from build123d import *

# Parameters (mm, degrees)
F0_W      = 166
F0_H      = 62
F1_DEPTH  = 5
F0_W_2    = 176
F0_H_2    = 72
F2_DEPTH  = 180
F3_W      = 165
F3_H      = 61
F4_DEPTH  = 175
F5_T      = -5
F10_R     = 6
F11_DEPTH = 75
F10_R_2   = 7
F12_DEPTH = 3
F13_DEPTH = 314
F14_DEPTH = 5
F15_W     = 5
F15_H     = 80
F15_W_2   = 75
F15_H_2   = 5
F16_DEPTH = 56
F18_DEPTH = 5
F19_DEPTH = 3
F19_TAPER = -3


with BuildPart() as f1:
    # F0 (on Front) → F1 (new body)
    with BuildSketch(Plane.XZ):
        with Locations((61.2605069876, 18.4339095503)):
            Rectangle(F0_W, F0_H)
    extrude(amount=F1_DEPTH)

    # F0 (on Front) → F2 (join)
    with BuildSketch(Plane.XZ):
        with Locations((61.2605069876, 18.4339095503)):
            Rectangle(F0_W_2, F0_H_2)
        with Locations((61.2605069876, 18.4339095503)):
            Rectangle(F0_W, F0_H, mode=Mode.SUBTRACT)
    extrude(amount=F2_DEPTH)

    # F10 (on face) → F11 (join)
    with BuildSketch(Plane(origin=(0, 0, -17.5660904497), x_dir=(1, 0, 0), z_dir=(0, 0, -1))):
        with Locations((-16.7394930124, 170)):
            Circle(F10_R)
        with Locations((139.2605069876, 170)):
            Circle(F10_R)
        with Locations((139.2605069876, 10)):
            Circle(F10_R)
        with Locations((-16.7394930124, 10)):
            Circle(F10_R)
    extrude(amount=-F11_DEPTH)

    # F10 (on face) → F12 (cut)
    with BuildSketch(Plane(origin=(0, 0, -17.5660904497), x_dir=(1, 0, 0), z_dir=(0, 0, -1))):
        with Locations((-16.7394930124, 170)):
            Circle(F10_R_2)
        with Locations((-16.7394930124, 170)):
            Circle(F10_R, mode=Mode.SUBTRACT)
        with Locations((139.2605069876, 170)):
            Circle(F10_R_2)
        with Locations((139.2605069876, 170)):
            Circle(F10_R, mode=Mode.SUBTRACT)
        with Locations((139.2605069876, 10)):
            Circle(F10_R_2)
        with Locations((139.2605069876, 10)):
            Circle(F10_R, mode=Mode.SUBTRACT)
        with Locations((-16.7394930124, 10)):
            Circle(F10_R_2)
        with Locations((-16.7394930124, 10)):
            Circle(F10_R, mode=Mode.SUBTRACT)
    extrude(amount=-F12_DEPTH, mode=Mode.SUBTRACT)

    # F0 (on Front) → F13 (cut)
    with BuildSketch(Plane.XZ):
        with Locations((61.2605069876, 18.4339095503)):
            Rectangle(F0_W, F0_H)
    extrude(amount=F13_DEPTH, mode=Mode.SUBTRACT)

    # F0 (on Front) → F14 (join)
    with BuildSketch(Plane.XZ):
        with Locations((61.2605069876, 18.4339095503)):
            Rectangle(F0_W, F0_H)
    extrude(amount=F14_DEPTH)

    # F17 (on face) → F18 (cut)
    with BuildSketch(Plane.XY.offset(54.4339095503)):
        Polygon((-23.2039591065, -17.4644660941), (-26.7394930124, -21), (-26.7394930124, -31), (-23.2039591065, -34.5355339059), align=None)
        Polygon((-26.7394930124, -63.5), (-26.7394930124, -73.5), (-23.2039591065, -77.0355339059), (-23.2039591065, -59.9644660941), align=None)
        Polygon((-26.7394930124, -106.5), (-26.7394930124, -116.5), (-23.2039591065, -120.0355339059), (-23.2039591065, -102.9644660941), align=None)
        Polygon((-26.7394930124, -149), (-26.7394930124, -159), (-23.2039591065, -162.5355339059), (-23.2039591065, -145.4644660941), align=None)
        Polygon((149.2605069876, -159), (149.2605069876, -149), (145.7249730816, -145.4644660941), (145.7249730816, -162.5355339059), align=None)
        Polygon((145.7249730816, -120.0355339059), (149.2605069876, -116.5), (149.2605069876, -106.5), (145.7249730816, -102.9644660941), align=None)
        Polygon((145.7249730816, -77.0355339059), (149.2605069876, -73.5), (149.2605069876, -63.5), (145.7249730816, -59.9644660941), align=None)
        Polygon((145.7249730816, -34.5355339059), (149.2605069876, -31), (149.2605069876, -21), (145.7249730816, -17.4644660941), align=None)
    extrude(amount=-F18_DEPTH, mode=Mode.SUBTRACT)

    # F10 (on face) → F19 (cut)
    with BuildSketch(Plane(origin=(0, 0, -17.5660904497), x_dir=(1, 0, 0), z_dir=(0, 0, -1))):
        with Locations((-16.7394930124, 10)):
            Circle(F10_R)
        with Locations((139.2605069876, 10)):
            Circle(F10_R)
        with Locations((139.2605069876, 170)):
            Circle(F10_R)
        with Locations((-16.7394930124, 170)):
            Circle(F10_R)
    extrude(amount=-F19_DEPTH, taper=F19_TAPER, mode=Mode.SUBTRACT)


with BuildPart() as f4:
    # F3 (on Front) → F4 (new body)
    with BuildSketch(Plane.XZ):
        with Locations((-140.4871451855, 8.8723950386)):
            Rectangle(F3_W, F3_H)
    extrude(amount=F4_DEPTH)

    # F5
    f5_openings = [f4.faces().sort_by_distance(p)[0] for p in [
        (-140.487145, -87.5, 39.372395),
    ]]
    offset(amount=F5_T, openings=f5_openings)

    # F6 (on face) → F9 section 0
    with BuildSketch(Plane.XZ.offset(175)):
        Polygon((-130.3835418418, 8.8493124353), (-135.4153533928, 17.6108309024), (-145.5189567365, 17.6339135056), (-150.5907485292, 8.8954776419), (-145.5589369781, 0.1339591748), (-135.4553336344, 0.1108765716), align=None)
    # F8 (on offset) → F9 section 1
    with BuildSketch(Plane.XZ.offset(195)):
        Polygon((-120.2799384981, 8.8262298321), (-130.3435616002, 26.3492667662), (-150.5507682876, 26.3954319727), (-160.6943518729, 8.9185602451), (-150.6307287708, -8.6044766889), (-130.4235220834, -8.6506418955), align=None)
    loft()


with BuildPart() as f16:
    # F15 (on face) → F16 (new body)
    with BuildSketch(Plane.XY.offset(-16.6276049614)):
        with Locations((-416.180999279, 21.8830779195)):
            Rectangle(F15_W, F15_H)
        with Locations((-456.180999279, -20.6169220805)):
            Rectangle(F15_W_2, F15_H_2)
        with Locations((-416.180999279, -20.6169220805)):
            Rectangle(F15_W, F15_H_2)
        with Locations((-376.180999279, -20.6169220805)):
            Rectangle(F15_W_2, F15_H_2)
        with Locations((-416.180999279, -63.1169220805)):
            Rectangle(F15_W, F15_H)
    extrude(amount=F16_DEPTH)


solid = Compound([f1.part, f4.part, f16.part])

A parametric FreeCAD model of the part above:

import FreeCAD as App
import Part
import Sketcher

V = App.Vector


def faces_at(feature, points):
    """Names of the faces that lie closest to the given points."""
    faces = feature.Shape.Faces
    near = lambda p: min(range(len(faces)), key=lambda i: faces[i].distToShape(Part.Vertex(*p))[0])
    return sorted({f"Face{near(p) + 1}" for p in points})

doc = App.newDocument("Part")
params = doc.addObject("Spreadsheet::Sheet", "Params")
for row, (alias, value) in enumerate([
    ("sketch1_width", "166 mm"),
    ("sketch1_height", "62 mm"),
    ("pad1_length", "5 mm"),
    ("sketch2_width", "176 mm"),
    ("sketch2_width2", "166 mm"),
    ("sketch2_height", "72 mm"),
    ("sketch2_height2", "62 mm"),
    ("pad2_length", "180 mm"),
    ("sketch3_diameter", "12 mm"),
    ("pad3_length", "75 mm"),
    ("sketch4_diameter", "14 mm"),
    ("sketch4_diameter2", "12 mm"),
    ("pocket1_length", "3 mm"),
    ("sketch5_width", "166 mm"),
    ("sketch5_height", "62 mm"),
    ("pocket2_length", "314 mm"),
    ("sketch6_width", "166 mm"),
    ("sketch6_height", "62 mm"),
    ("pad4_length", "5 mm"),
    ("sketch7_height", "10 mm"),
    ("sketch7_length", "5 mm"),
    ("pocket3_length", "5 mm"),
    ("sketch8_diameter", "12 mm"),
    ("pocket4_length", "3 mm"),
    ("pocket4_taper", "3 deg"),
    ("sketch9_width", "165 mm"),
    ("sketch9_height", "61 mm"),
    ("pad5_length", "175 mm"),
    ("thickness_wall", "5 mm"),
    ("sketch12_width", "75 mm"),
    ("sketch12_width2", "5 mm"),
    ("sketch12_height", "80 mm"),
    ("pad6_length", "56 mm"),
], start=1):
    params.set(f"A{row}", alias)
    params.set(f"B{row}", "=" + value)
    params.setAlias(f"B{row}", alias)

body = doc.addObject("PartDesign::Body", "Body")

sketch1 = body.newObject("Sketcher::SketchObject", "Sketch")
sketch1.AttachmentSupport = (doc.getObject("XZ_Plane"), [""])
sketch1.MapMode = "FlatFace"
sketch1.addGeometry([
    Part.LineSegment(V(-22, 49, 0), V(-22, -13, 0)),
    Part.LineSegment(V(-22, -13, 0), V(144, -13, 0)),
    Part.LineSegment(V(144, -13, 0), V(144, 49, 0)),
    Part.LineSegment(V(144, 49, 0), V(-22, 49, 0)),
], False)
sketch1.addConstraint([
    Sketcher.Constraint("Coincident", 0, 2, 1, 1),
    Sketcher.Constraint("Coincident", 1, 2, 2, 1),
    Sketcher.Constraint("Coincident", 2, 2, 3, 1),
    Sketcher.Constraint("Coincident", 3, 2, 0, 1),
    Sketcher.Constraint("Vertical", 0),
    Sketcher.Constraint("Horizontal", 1),
    Sketcher.Constraint("Vertical", 2),
    Sketcher.Constraint("Horizontal", 3),
    Sketcher.Constraint("DistanceX", 1, 1, 1, 2, 166.0),
    Sketcher.Constraint("DistanceY", 0, 2, 0, 1, 62.0),
    Sketcher.Constraint("DistanceY", 0, 2, -1, 1, 12.56609),
    Sketcher.Constraint("DistanceX", 0, 2, -1, 1, 21.739493),
])
sketch1.setExpression("Constraints[8]", "Params.sketch1_width")
sketch1.setExpression("Constraints[9]", "Params.sketch1_height")
pad1 = body.newObject("PartDesign::Pad", "Pad")
pad1.Profile = sketch1
pad1.setExpression("Length", "Params.pad1_length")

sketch2 = body.newObject("Sketcher::SketchObject", "Sketch001")
sketch2.AttachmentSupport = (doc.getObject("XZ_Plane"), [""])
sketch2.MapMode = "FlatFace"
sketch2.addGeometry([
    Part.LineSegment(V(-27, 54, 0), V(-27, -18, 0)),
    Part.LineSegment(V(-27, -18, 0), V(149, -18, 0)),
    Part.LineSegment(V(149, -18, 0), V(149, 54, 0)),
    Part.LineSegment(V(149, 54, 0), V(-27, 54, 0)),
    Part.LineSegment(V(144, -13, 0), V(-22, -13, 0)),
    Part.LineSegment(V(-22, -13, 0), V(-22, 49, 0)),
    Part.LineSegment(V(-22, 49, 0), V(144, 49, 0)),
    Part.LineSegment(V(144, 49, 0), V(144, -13, 0)),
], False)
sketch2.addConstraint([
    Sketcher.Constraint("Coincident", 0, 2, 1, 1),
    Sketcher.Constraint("Coincident", 1, 2, 2, 1),
    Sketcher.Constraint("Coincident", 2, 2, 3, 1),
    Sketcher.Constraint("Coincident", 3, 2, 0, 1),
    Sketcher.Constraint("Coincident", 4, 2, 5, 1),
    Sketcher.Constraint("Coincident", 5, 2, 6, 1),
    Sketcher.Constraint("Coincident", 6, 2, 7, 1),
    Sketcher.Constraint("Coincident", 7, 2, 4, 1),
    Sketcher.Constraint("Vertical", 0),
    Sketcher.Constraint("Horizontal", 1),
    Sketcher.Constraint("Vertical", 2),
    Sketcher.Constraint("Horizontal", 3),
    Sketcher.Constraint("Horizontal", 4),
    Sketcher.Constraint("Vertical", 5),
    Sketcher.Constraint("Horizontal", 6),
    Sketcher.Constraint("Vertical", 7),
    Sketcher.Constraint("DistanceX", 1, 1, 1, 2, 176.0),
    Sketcher.Constraint("DistanceX", 4, 2, 4, 1, 166.0),
    Sketcher.Constraint("DistanceY", 0, 2, 0, 1, 72.0),
    Sketcher.Constraint("DistanceY", 5, 1, 5, 2, 62.0),
    Sketcher.Constraint("DistanceX", 0, 2, 4, 2, 5.0),
    Sketcher.Constraint("DistanceY", 0, 2, 4, 2, 5.0),
    Sketcher.Constraint("DistanceY", 0, 2, -1, 1, 17.56609),
    Sketcher.Constraint("DistanceX", 0, 2, -1, 1, 26.739493),
])
sketch2.setExpression("Constraints[16]", "Params.sketch2_width")
sketch2.setExpression("Constraints[17]", "Params.sketch2_width2")
sketch2.setExpression("Constraints[18]", "Params.sketch2_height")
sketch2.setExpression("Constraints[19]", "Params.sketch2_height2")
pad2 = body.newObject("PartDesign::Pad", "Pad001")
pad2.Profile = sketch2
pad2.setExpression("Length", "Params.pad2_length")

sketch3 = body.newObject("Sketcher::SketchObject", "Sketch002")
sketch3.AttachmentSupport = (doc.getObject("XY_Plane"), [""])
sketch3.MapMode = "FlatFace"
sketch3.AttachmentOffset = App.Placement(V(0, 0, -17.56609), App.Rotation())
sketch3.addGeometry([
    Part.Circle(V(-17, -170, 0), V(0, 0, 1), 6),
    Part.Circle(V(139, -170, 0), V(0, 0, 1), 6),
    Part.Circle(V(139, -10, 0), V(0, 0, 1), 6),
    Part.Circle(V(-17, -10, 0), V(0, 0, 1), 6),
], False)
sketch3.addConstraint([
    Sketcher.Constraint("Equal", 0, 1),
    Sketcher.Constraint("Equal", 1, 2),
    Sketcher.Constraint("Equal", 2, 3),
    Sketcher.Constraint("Horizontal", 0, 3, 1, 3),
    Sketcher.Constraint("Horizontal", 2, 3, 3, 3),
    Sketcher.Constraint("Vertical", 1, 3, 2, 3),
    Sketcher.Constraint("Vertical", 0, 3, 3, 3),
    Sketcher.Constraint("Diameter", 0, 12.0),
    Sketcher.Constraint("DistanceY", 0, 3, -1, 1, 170.0),
    Sketcher.Constraint("DistanceY", 2, 3, -1, 1, 10.0),
    Sketcher.Constraint("DistanceX", 0, 3, 1, 3, 156.0),
    Sketcher.Constraint("DistanceX", 0, 3, -1, 1, 16.739493),
])
sketch3.setExpression("Constraints[7]", "Params.sketch3_diameter")
pad3 = body.newObject("PartDesign::Pad", "Pad002")
pad3.Profile = sketch3
pad3.setExpression("Length", "Params.pad3_length")

sketch4 = body.newObject("Sketcher::SketchObject", "Sketch003")
sketch4.AttachmentSupport = (doc.getObject("XY_Plane"), [""])
sketch4.MapMode = "FlatFace"
sketch4.AttachmentOffset = App.Placement(V(0, 0, -17.56609), App.Rotation())
sketch4.addGeometry([
    Part.Circle(V(-17, -170, 0), V(0, 0, 1), 7),
    Part.Circle(V(-17, -170, 0), V(0, 0, 1), 6),
    Part.Circle(V(139, -170, 0), V(0, 0, 1), 7),
    Part.Circle(V(139, -170, 0), V(0, 0, 1), 6),
    Part.Circle(V(139, -10, 0), V(0, 0, 1), 7),
    Part.Circle(V(139, -10, 0), V(0, 0, 1), 6),
    Part.Circle(V(-17, -10, 0), V(0, 0, 1), 7),
    Part.Circle(V(-17, -10, 0), V(0, 0, 1), 6),
], False)
sketch4.addConstraint([
    Sketcher.Constraint("Coincident", 1, 3, 0, 3),
    Sketcher.Constraint("Coincident", 3, 3, 2, 3),
    Sketcher.Constraint("Coincident", 5, 3, 4, 3),
    Sketcher.Constraint("Coincident", 7, 3, 6, 3),
    Sketcher.Constraint("Equal", 0, 2),
    Sketcher.Constraint("Equal", 1, 3),
    Sketcher.Constraint("Equal", 2, 4),
    Sketcher.Constraint("Equal", 3, 5),
    Sketcher.Constraint("Equal", 4, 6),
    Sketcher.Constraint("Equal", 5, 7),
    Sketcher.Constraint("Horizontal", 1, 3, 2, 3),
    Sketcher.Constraint("Horizontal", 5, 3, 6, 3),
    Sketcher.Constraint("Vertical", 3, 3, 4, 3),
    Sketcher.Constraint("Vertical", 1, 3, 6, 3),
    Sketcher.Constraint("Diameter", 0, 14.0),
    Sketcher.Constraint("Diameter", 1, 12.0),
    Sketcher.Constraint("DistanceY", 0, 3, -1, 1, 170.0),
    Sketcher.Constraint("DistanceY", 4, 3, -1, 1, 10.0),
    Sketcher.Constraint("DistanceX", 0, 3, 2, 3, 156.0),
    Sketcher.Constraint("DistanceX", 0, 3, -1, 1, 16.739493),
])
sketch4.setExpression("Constraints[14]", "Params.sketch4_diameter")
sketch4.setExpression("Constraints[15]", "Params.sketch4_diameter2")
pocket1 = body.newObject("PartDesign::Pocket", "Pocket")
pocket1.Profile = sketch4
pocket1.setExpression("Length", "Params.pocket1_length")
pocket1.Reversed = True

sketch5 = body.newObject("Sketcher::SketchObject", "Sketch004")
sketch5.AttachmentSupport = (doc.getObject("XZ_Plane"), [""])
sketch5.MapMode = "FlatFace"
sketch5.addGeometry([
    Part.LineSegment(V(-22, 49, 0), V(-22, -13, 0)),
    Part.LineSegment(V(-22, -13, 0), V(144, -13, 0)),
    Part.LineSegment(V(144, -13, 0), V(144, 49, 0)),
    Part.LineSegment(V(144, 49, 0), V(-22, 49, 0)),
], False)
sketch5.addConstraint([
    Sketcher.Constraint("Coincident", 0, 2, 1, 1),
    Sketcher.Constraint("Coincident", 1, 2, 2, 1),
    Sketcher.Constraint("Coincident", 2, 2, 3, 1),
    Sketcher.Constraint("Coincident", 3, 2, 0, 1),
    Sketcher.Constraint("Vertical", 0),
    Sketcher.Constraint("Horizontal", 1),
    Sketcher.Constraint("Vertical", 2),
    Sketcher.Constraint("Horizontal", 3),
    Sketcher.Constraint("DistanceX", 1, 1, 1, 2, 166.0),
    Sketcher.Constraint("DistanceY", 0, 2, 0, 1, 62.0),
    Sketcher.Constraint("DistanceY", 0, 2, -1, 1, 12.56609),
    Sketcher.Constraint("DistanceX", 0, 2, -1, 1, 21.739493),
])
sketch5.setExpression("Constraints[8]", "Params.sketch5_width")
sketch5.setExpression("Constraints[9]", "Params.sketch5_height")
pocket2 = body.newObject("PartDesign::Pocket", "Pocket001")
pocket2.Profile = sketch5
pocket2.setExpression("Length", "Params.pocket2_length")
pocket2.Reversed = True

sketch6 = body.newObject("Sketcher::SketchObject", "Sketch005")
sketch6.AttachmentSupport = (doc.getObject("XZ_Plane"), [""])
sketch6.MapMode = "FlatFace"
sketch6.addGeometry([
    Part.LineSegment(V(-22, 49, 0), V(-22, -13, 0)),
    Part.LineSegment(V(-22, -13, 0), V(144, -13, 0)),
    Part.LineSegment(V(144, -13, 0), V(144, 49, 0)),
    Part.LineSegment(V(144, 49, 0), V(-22, 49, 0)),
], False)
sketch6.addConstraint([
    Sketcher.Constraint("Coincident", 0, 2, 1, 1),
    Sketcher.Constraint("Coincident", 1, 2, 2, 1),
    Sketcher.Constraint("Coincident", 2, 2, 3, 1),
    Sketcher.Constraint("Coincident", 3, 2, 0, 1),
    Sketcher.Constraint("Vertical", 0),
    Sketcher.Constraint("Horizontal", 1),
    Sketcher.Constraint("Vertical", 2),
    Sketcher.Constraint("Horizontal", 3),
    Sketcher.Constraint("DistanceX", 1, 1, 1, 2, 166.0),
    Sketcher.Constraint("DistanceY", 0, 2, 0, 1, 62.0),
    Sketcher.Constraint("DistanceY", 0, 2, -1, 1, 12.56609),
    Sketcher.Constraint("DistanceX", 0, 2, -1, 1, 21.739493),
])
sketch6.setExpression("Constraints[8]", "Params.sketch6_width")
sketch6.setExpression("Constraints[9]", "Params.sketch6_height")
pad4 = body.newObject("PartDesign::Pad", "Pad003")
pad4.Profile = sketch6
pad4.setExpression("Length", "Params.pad4_length")

sketch7 = body.newObject("Sketcher::SketchObject", "Sketch006")
sketch7.AttachmentSupport = (doc.getObject("XY_Plane"), [""])
sketch7.MapMode = "FlatFace"
sketch7.AttachmentOffset = App.Placement(V(0, 0, 54.43391), App.Rotation())
sketch7.addGeometry([
    Part.LineSegment(V(-23.2, -17.5, 0), V(-26.7, -21, 0)),
    Part.LineSegment(V(-26.7, -21, 0), V(-26.7, -31, 0)),
    Part.LineSegment(V(-26.7, -31, 0), V(-23.2, -34.5, 0)),
    Part.LineSegment(V(-23.2, -34.5, 0), V(-23.2, -17.5, 0)),
    Part.LineSegment(V(-26.7, -63.5, 0), V(-26.7, -73.5, 0)),
    Part.LineSegment(V(-26.7, -73.5, 0), V(-23.2, -77, 0)),
    Part.LineSegment(V(-23.2, -77, 0), V(-23.2, -60, 0)),
    Part.LineSegment(V(-23.2, -60, 0), V(-26.7, -63.5, 0)),
    Part.LineSegment(V(-26.7, -106.5, 0), V(-26.7, -116.5, 0)),
    Part.LineSegment(V(-26.7, -116.5, 0), V(-23.2, -120, 0)),
    Part.LineSegment(V(-23.2, -120, 0), V(-23.2, -103, 0)),
    Part.LineSegment(V(-23.2, -103, 0), V(-26.7, -106.5, 0)),
    Part.LineSegment(V(-26.7, -149, 0), V(-26.7, -159, 0)),
    Part.LineSegment(V(-26.7, -159, 0), V(-23.2, -162.5, 0)),
    Part.LineSegment(V(-23.2, -162.5, 0), V(-23.2, -145.5, 0)),
    Part.LineSegment(V(-23.2, -145.5, 0), V(-26.7, -149, 0)),
    Part.LineSegment(V(149.3, -159, 0), V(149.3, -149, 0)),
    Part.LineSegment(V(149.3, -149, 0), V(145.7, -145.5, 0)),
    Part.LineSegment(V(145.7, -145.5, 0), V(145.7, -162.5, 0)),
    Part.LineSegment(V(145.7, -162.5, 0), V(149.3, -159, 0)),
    Part.LineSegment(V(145.7, -120, 0), V(149.3, -116.5, 0)),
    Part.LineSegment(V(149.3, -116.5, 0), V(149.3, -106.5, 0)),
    Part.LineSegment(V(149.3, -106.5, 0), V(145.7, -103, 0)),
    Part.LineSegment(V(145.7, -103, 0), V(145.7, -120, 0)),
    Part.LineSegment(V(145.7, -77, 0), V(149.3, -73.5, 0)),
    Part.LineSegment(V(149.3, -73.5, 0), V(149.3, -63.5, 0)),
    Part.LineSegment(V(149.3, -63.5, 0), V(145.7, -60, 0)),
    Part.LineSegment(V(145.7, -60, 0), V(145.7, -77, 0)),
    Part.LineSegment(V(145.7, -34.5, 0), V(149.3, -31, 0)),
    Part.LineSegment(V(149.3, -31, 0), V(149.3, -21, 0)),
    Part.LineSegment(V(149.3, -21, 0), V(145.7, -17.5, 0)),
    Part.LineSegment(V(145.7, -17.5, 0), V(145.7, -34.5, 0)),
], False)
sketch7.addConstraint([
    Sketcher.Constraint("Coincident", 0, 2, 1, 1),
    Sketcher.Constraint("Coincident", 1, 2, 2, 1),
    Sketcher.Constraint("Coincident", 2, 2, 3, 1),
    Sketcher.Constraint("Coincident", 3, 2, 0, 1),
    Sketcher.Constraint("Coincident", 4, 2, 5, 1),
    Sketcher.Constraint("Coincident", 5, 2, 6, 1),
    Sketcher.Constraint("Coincident", 6, 2, 7, 1),
    Sketcher.Constraint("Coincident", 7, 2, 4, 1),
    Sketcher.Constraint("Coincident", 8, 2, 9, 1),
    Sketcher.Constraint("Coincident", 9, 2, 10, 1),
    Sketcher.Constraint("Coincident", 10, 2, 11, 1),
    Sketcher.Constraint("Coincident", 11, 2, 8, 1),
    Sketcher.Constraint("Coincident", 12, 2, 13, 1),
    Sketcher.Constraint("Coincident", 13, 2, 14, 1),
    Sketcher.Constraint("Coincident", 14, 2, 15, 1),
    Sketcher.Constraint("Coincident", 15, 2, 12, 1),
    Sketcher.Constraint("Coincident", 16, 2, 17, 1),
    Sketcher.Constraint("Coincident", 17, 2, 18, 1),
    Sketcher.Constraint("Coincident", 18, 2, 19, 1),
    Sketcher.Constraint("Coincident", 19, 2, 16, 1),
    Sketcher.Constraint("Coincident", 20, 2, 21, 1),
    Sketcher.Constraint("Coincident", 21, 2, 22, 1),
    Sketcher.Constraint("Coincident", 22, 2, 23, 1),
    Sketcher.Constraint("Coincident", 23, 2, 20, 1),
    Sketcher.Constraint("Coincident", 24, 2, 25, 1),
    Sketcher.Constraint("Coincident", 25, 2, 26, 1),
    Sketcher.Constraint("Coincident", 26, 2, 27, 1),
    Sketcher.Constraint("Coincident", 27, 2, 24, 1),
    Sketcher.Constraint("Coincident", 28, 2, 29, 1),
    Sketcher.Constraint("Coincident", 29, 2, 30, 1),
    Sketcher.Constraint("Coincident", 30, 2, 31, 1),
    Sketcher.Constraint("Coincident", 31, 2, 28, 1),
    Sketcher.Constraint("Vertical", 1),
    Sketcher.Constraint("Vertical", 3),
    Sketcher.Constraint("Vertical", 4),
    Sketcher.Constraint("Vertical", 6),
    Sketcher.Constraint("Vertical", 8),
    Sketcher.Constraint("Vertical", 10),
    Sketcher.Constraint("Vertical", 12),
    Sketcher.Constraint("Vertical", 14),
    Sketcher.Constraint("Vertical", 16),
    Sketcher.Constraint("Vertical", 18),
    Sketcher.Constraint("Vertical", 21),
    Sketcher.Constraint("Vertical", 23),
    Sketcher.Constraint("Vertical", 25),
    Sketcher.Constraint("Vertical", 27),
    Sketcher.Constraint("Vertical", 29),
    Sketcher.Constraint("Vertical", 31),
    Sketcher.Constraint("Perpendicular", 0, 2),
    Sketcher.Constraint("Parallel", 2, 5),
    Sketcher.Constraint("Perpendicular", 5, 7),
    Sketcher.Constraint("Perpendicular", 7, 9),
    Sketcher.Constraint("Perpendicular", 9, 11),
    Sketcher.Constraint("Perpendicular", 11, 13),
    Sketcher.Constraint("Perpendicular", 13, 15),
    Sketcher.Constraint("Perpendicular", 15, 17),
    Sketcher.Constraint("Perpendicular", 17, 19),
    Sketcher.Constraint("Parallel", 19, 20),
    Sketcher.Constraint("Perpendicular", 20, 22),
    Sketcher.Constraint("Perpendicular", 22, 24),
    Sketcher.Constraint("Perpendicular", 24, 26),
    Sketcher.Constraint("Perpendicular", 26, 28),
    Sketcher.Constraint("Perpendicular", 28, 30),
    Sketcher.Constraint("Horizontal", 15, 2, 16, 2),
    Sketcher.Constraint("Horizontal", 14, 2, 17, 2),
    Sketcher.Constraint("Horizontal", 13, 2, 18, 2),
    Sketcher.Constraint("Horizontal", 12, 2, 19, 2),
    Sketcher.Constraint("Horizontal", 8, 2, 20, 2),
    Sketcher.Constraint("Horizontal", 11, 2, 21, 2),
    Sketcher.Constraint("Horizontal", 10, 2, 22, 2),
    Sketcher.Constraint("Horizontal", 4, 2, 24, 2),
    Sketcher.Constraint("Horizontal", 7, 2, 25, 2),
    Sketcher.Constraint("Horizontal", 6, 2, 26, 2),
    Sketcher.Constraint("Horizontal", 1, 2, 28, 2),
    Sketcher.Constraint("Horizontal", 0, 2, 29, 2),
    Sketcher.Constraint("Horizontal", 3, 2, 30, 2),
    Sketcher.Constraint("Vertical", 1, 2, 4, 2),
    Sketcher.Constraint("Vertical", 3, 2, 5, 2),
    Sketcher.Constraint("Vertical", 7, 2, 8, 2),
    Sketcher.Constraint("Vertical", 6, 2, 9, 2),
    Sketcher.Constraint("Vertical", 11, 2, 12, 2),
    Sketcher.Constraint("Vertical", 10, 2, 13, 2),
    Sketcher.Constraint("Vertical", 19, 2, 20, 2),
    Sketcher.Constraint("Vertical", 21, 2, 24, 2),
    Sketcher.Constraint("Vertical", 25, 2, 28, 2),
    Sketcher.Constraint("Equal", 1, 4),
    Sketcher.Constraint("Equal", 4, 8),
    Sketcher.Constraint("Equal", 8, 12),
    Sketcher.Constraint("DistanceY", 1, 2, 1, 1, 10.0),
    Sketcher.Constraint("Distance", 0, 5.0),
    Sketcher.Constraint("DistanceY", 0, 2, -1, 1, 21.0),
    Sketcher.Constraint("DistanceY", 12, 2, -1, 1, 159.0),
    Sketcher.Constraint("DistanceY", 8, 2, 4, 2, 43.0),
    Sketcher.Constraint("DistanceX", 15, 2, 16, 2, 176.0),
    Sketcher.Constraint("DistanceY", 4, 2, -1, 1, 73.5),
    Sketcher.Constraint("DistanceX", 2, 2, -1, 1, 23.203959),
])
sketch7.setExpression("Constraints[88]", "Params.sketch7_height")
sketch7.setExpression("Constraints[89]", "Params.sketch7_length")
pocket3 = body.newObject("PartDesign::Pocket", "Pocket002")
pocket3.Profile = sketch7
pocket3.setExpression("Length", "Params.pocket3_length")

sketch8 = body.newObject("Sketcher::SketchObject", "Sketch007")
sketch8.AttachmentSupport = (doc.getObject("XY_Plane"), [""])
sketch8.MapMode = "FlatFace"
sketch8.AttachmentOffset = App.Placement(V(0, 0, -17.56609), App.Rotation())
sketch8.addGeometry([
    Part.Circle(V(-17, -10, 0), V(0, 0, 1), 6),
    Part.Circle(V(139, -10, 0), V(0, 0, 1), 6),
    Part.Circle(V(139, -170, 0), V(0, 0, 1), 6),
    Part.Circle(V(-17, -170, 0), V(0, 0, 1), 6),
], False)
sketch8.addConstraint([
    Sketcher.Constraint("Equal", 0, 1),
    Sketcher.Constraint("Equal", 1, 2),
    Sketcher.Constraint("Equal", 2, 3),
    Sketcher.Constraint("Horizontal", 0, 3, 1, 3),
    Sketcher.Constraint("Horizontal", 2, 3, 3, 3),
    Sketcher.Constraint("Vertical", 1, 3, 2, 3),
    Sketcher.Constraint("Vertical", 0, 3, 3, 3),
    Sketcher.Constraint("Diameter", 0, 12.0),
    Sketcher.Constraint("DistanceY", 0, 3, -1, 1, 10.0),
    Sketcher.Constraint("DistanceY", 2, 3, -1, 1, 170.0),
    Sketcher.Constraint("DistanceX", 0, 3, 1, 3, 156.0),
    Sketcher.Constraint("DistanceX", 0, 3, -1, 1, 16.739493),
])
sketch8.setExpression("Constraints[7]", "Params.sketch8_diameter")
pocket4 = body.newObject("PartDesign::Pocket", "Pocket003")
pocket4.Profile = sketch8
pocket4.setExpression("Length", "Params.pocket4_length")
pocket4.Reversed = True
pocket4.setExpression("TaperAngle", "Params.pocket4_taper")
body2 = doc.addObject("PartDesign::Body", "Body001")

sketch9 = body2.newObject("Sketcher::SketchObject", "Sketch008")
sketch9.AttachmentSupport = (doc.getObject("XZ_Plane001"), [""])
sketch9.MapMode = "FlatFace"
sketch9.addGeometry([
    Part.LineSegment(V(-223, 39, 0), V(-223, -22, 0)),
    Part.LineSegment(V(-223, -22, 0), V(-58, -22, 0)),
    Part.LineSegment(V(-58, -22, 0), V(-58, 39, 0)),
    Part.LineSegment(V(-58, 39, 0), V(-223, 39, 0)),
], False)
sketch9.addConstraint([
    Sketcher.Constraint("Coincident", 0, 2, 1, 1),
    Sketcher.Constraint("Coincident", 1, 2, 2, 1),
    Sketcher.Constraint("Coincident", 2, 2, 3, 1),
    Sketcher.Constraint("Coincident", 3, 2, 0, 1),
    Sketcher.Constraint("Vertical", 0),
    Sketcher.Constraint("Horizontal", 1),
    Sketcher.Constraint("Vertical", 2),
    Sketcher.Constraint("Horizontal", 3),
    Sketcher.Constraint("DistanceX", 1, 1, 1, 2, 165.0),
    Sketcher.Constraint("DistanceY", 0, 2, 0, 1, 61.0),
    Sketcher.Constraint("DistanceX", 0, 2, -1, 1, 222.987145),
    Sketcher.Constraint("DistanceY", 0, 2, -1, 1, 21.627605),
])
sketch9.setExpression("Constraints[8]", "Params.sketch9_width")
sketch9.setExpression("Constraints[9]", "Params.sketch9_height")
pad5 = body2.newObject("PartDesign::Pad", "Pad004")
pad5.Profile = sketch9
pad5.setExpression("Length", "Params.pad5_length")
doc.recompute()

thickness = body2.newObject("PartDesign::Thickness", "Thickness")
thickness.Base = (pad5, faces_at(pad5, [(-140.487, -87.5, 39.372)]))
thickness.setExpression("Value", "Params.thickness_wall")
thickness.Reversed = True
thickness.Join = "Arc"

sketch10 = body2.newObject("Sketcher::SketchObject", "Sketch009")
sketch10.AttachmentSupport = (doc.getObject("XZ_Plane001"), [""])
sketch10.MapMode = "FlatFace"
sketch10.AttachmentOffset = App.Placement(V(0, 0, 175), App.Rotation())
sketch10.addGeometry([
    Part.LineSegment(V(-130, 9, 0), V(-135, 18, 0)),
    Part.LineSegment(V(-135, 18, 0), V(-146, 18, 0)),
    Part.LineSegment(V(-146, 18, 0), V(-151, 9, 0)),
    Part.LineSegment(V(-151, 9, 0), V(-146, 0, 0)),
    Part.LineSegment(V(-146, 0, 0), V(-135, 0, 0)),
    Part.LineSegment(V(-135, 0, 0), V(-130, 9, 0)),
], False)
sketch10.addConstraint([
    Sketcher.Constraint("Coincident", 0, 2, 1, 1),
    Sketcher.Constraint("Coincident", 1, 2, 2, 1),
    Sketcher.Constraint("Coincident", 2, 2, 3, 1),
    Sketcher.Constraint("Coincident", 3, 2, 4, 1),
    Sketcher.Constraint("Coincident", 4, 2, 5, 1),
    Sketcher.Constraint("Coincident", 5, 2, 0, 1),
    Sketcher.Constraint("Parallel", 0, 3),
    Sketcher.Constraint("Parallel", 1, 4),
    Sketcher.Constraint("Parallel", 2, 5),
    Sketcher.Constraint("Equal", 0, 1),
    Sketcher.Constraint("Equal", 1, 2),
    Sketcher.Constraint("Equal", 2, 3),
    Sketcher.Constraint("DistanceY", 4, 2, 2, 2, 8.784601),
    Sketcher.Constraint("Distance", 0, 10.10363),
    Sketcher.Constraint("DistanceY", -1, 1, 0, 2, 17.610831),
    Sketcher.Constraint("DistanceX", 2, 2, -1, 1, 150.590749),
    Sketcher.Constraint("DistanceY", -1, 1, 3, 2, 0.133959),
    Sketcher.Constraint("DistanceX", 5, 2, -1, 1, 130.383542),
])

sketch11 = body2.newObject("Sketcher::SketchObject", "Sketch010")
sketch11.AttachmentSupport = (doc.getObject("XZ_Plane001"), [""])
sketch11.MapMode = "FlatFace"
sketch11.AttachmentOffset = App.Placement(V(0, 0, 195), App.Rotation())
sketch11.addGeometry([
    Part.LineSegment(V(-120, 9, 0), V(-130, 26, 0)),
    Part.LineSegment(V(-130, 26, 0), V(-151, 26, 0)),
    Part.LineSegment(V(-151, 26, 0), V(-161, 9, 0)),
    Part.LineSegment(V(-161, 9, 0), V(-151, -9, 0)),
    Part.LineSegment(V(-151, -9, 0), V(-130, -9, 0)),
    Part.LineSegment(V(-130, -9, 0), V(-120, 9, 0)),
], False)
sketch11.addConstraint([
    Sketcher.Constraint("Coincident", 0, 2, 1, 1),
    Sketcher.Constraint("Coincident", 1, 2, 2, 1),
    Sketcher.Constraint("Coincident", 2, 2, 3, 1),
    Sketcher.Constraint("Coincident", 3, 2, 4, 1),
    Sketcher.Constraint("Coincident", 4, 2, 5, 1),
    Sketcher.Constraint("Coincident", 5, 2, 0, 1),
    Sketcher.Constraint("Parallel", 0, 3),
    Sketcher.Constraint("Parallel", 1, 4),
    Sketcher.Constraint("Parallel", 2, 5),
    Sketcher.Constraint("Equal", 0, 1),
    Sketcher.Constraint("Equal", 1, 2),
    Sketcher.Constraint("Equal", 2, 3),
    Sketcher.Constraint("Distance", 0, 20.207259),
    Sketcher.Constraint("DistanceX", 0, 2, -1, 1, 130.343562),
    Sketcher.Constraint("DistanceY", -1, 1, 1, 2, 26.395432),
    Sketcher.Constraint("DistanceX", 2, 2, -1, 1, 160.694352),
    Sketcher.Constraint("DistanceX", 3, 2, -1, 1, 150.630729),
    Sketcher.Constraint("DistanceY", 4, 2, -1, 1, 8.650642),
])

additiveloft = body2.newObject("PartDesign::AdditiveLoft", "AdditiveLoft")
additiveloft.Profile = sketch10
additiveloft.Sections = [sketch11]
body3 = doc.addObject("PartDesign::Body", "Body002")

sketch12 = body3.newObject("Sketcher::SketchObject", "Sketch011")
sketch12.AttachmentSupport = (doc.getObject("XY_Plane002"), [""])
sketch12.MapMode = "FlatFace"
sketch12.AttachmentOffset = App.Placement(V(0, 0, -16.627605), App.Rotation())
sketch12.addGeometry([
    Part.LineSegment(V(-419, 62, 0), V(-419, -18, 0)),
    Part.LineSegment(V(-419, -18, 0), V(-494, -18, 0)),
    Part.LineSegment(V(-494, -18, 0), V(-494, -23, 0)),
    Part.LineSegment(V(-494, -23, 0), V(-419, -23, 0)),
    Part.LineSegment(V(-419, -23, 0), V(-419, -103, 0)),
    Part.LineSegment(V(-419, -103, 0), V(-414, -103, 0)),
    Part.LineSegment(V(-414, -103, 0), V(-414, -23, 0)),
    Part.LineSegment(V(-414, -23, 0), V(-339, -23, 0)),
    Part.LineSegment(V(-339, -23, 0), V(-339, -18, 0)),
    Part.LineSegment(V(-339, -18, 0), V(-414, -18, 0)),
    Part.LineSegment(V(-414, -18, 0), V(-414, 62, 0)),
    Part.LineSegment(V(-414, 62, 0), V(-419, 62, 0)),
], False)
sketch12.addConstraint([
    Sketcher.Constraint("Coincident", 0, 2, 1, 1),
    Sketcher.Constraint("Coincident", 1, 2, 2, 1),
    Sketcher.Constraint("Coincident", 2, 2, 3, 1),
    Sketcher.Constraint("Coincident", 3, 2, 4, 1),
    Sketcher.Constraint("Coincident", 4, 2, 5, 1),
    Sketcher.Constraint("Coincident", 5, 2, 6, 1),
    Sketcher.Constraint("Coincident", 6, 2, 7, 1),
    Sketcher.Constraint("Coincident", 7, 2, 8, 1),
    Sketcher.Constraint("Coincident", 8, 2, 9, 1),
    Sketcher.Constraint("Coincident", 9, 2, 10, 1),
    Sketcher.Constraint("Coincident", 10, 2, 11, 1),
    Sketcher.Constraint("Coincident", 11, 2, 0, 1),
    Sketcher.Constraint("Vertical", 0),
    Sketcher.Constraint("Horizontal", 1),
    Sketcher.Constraint("Vertical", 2),
    Sketcher.Constraint("Horizontal", 3),
    Sketcher.Constraint("Vertical", 4),
    Sketcher.Constraint("Horizontal", 5),
    Sketcher.Constraint("Vertical", 6),
    Sketcher.Constraint("Horizontal", 7),
    Sketcher.Constraint("Vertical", 8),
    Sketcher.Constraint("Horizontal", 9),
    Sketcher.Constraint("Vertical", 10),
    Sketcher.Constraint("Horizontal", 11),
    Sketcher.Constraint("Horizontal", 3, 2, 6, 2),
    Sketcher.Constraint("Horizontal", 1, 2, 8, 2),
    Sketcher.Constraint("Vertical", 0, 2, 3, 2),
    Sketcher.Constraint("Vertical", 6, 2, 9, 2),
    Sketcher.Constraint("Equal", 3, 7),
    Sketcher.Constraint("Equal", 11, 2),
    Sketcher.Constraint("Equal", 0, 4),
    Sketcher.Constraint("DistanceX", 1, 2, 1, 1, 75.0),
    Sketcher.Constraint("DistanceX", 5, 1, 5, 2, 5.0),
    Sketcher.Constraint("DistanceY", 0, 2, 0, 1, 80.0),
    Sketcher.Constraint("DistanceX", 0, 2, -1, 1, 418.680999),
    Sketcher.Constraint("DistanceY", 0, 2, -1, 1, 18.116922),
])
sketch12.setExpression("Constraints[31]", "Params.sketch12_width")
sketch12.setExpression("Constraints[32]", "Params.sketch12_width2")
sketch12.setExpression("Constraints[33]", "Params.sketch12_height")
pad6 = body3.newObject("PartDesign::Pad", "Pad005")
pad6.Profile = sketch12
pad6.setExpression("Length", "Params.pad6_length")

doc.recompute()
